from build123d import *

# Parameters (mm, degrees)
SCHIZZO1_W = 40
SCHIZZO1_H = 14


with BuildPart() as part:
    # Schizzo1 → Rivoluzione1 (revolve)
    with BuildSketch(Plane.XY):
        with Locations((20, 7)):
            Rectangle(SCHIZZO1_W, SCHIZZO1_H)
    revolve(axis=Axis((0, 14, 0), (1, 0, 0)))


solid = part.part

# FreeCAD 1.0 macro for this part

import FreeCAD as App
import Part
import Sketcher
from FreeCAD import Vector


def add_polygon(sketch, points):
    """Adds a closed chain of lines whose ends are joined by coincident constraints."""
    first, n = sketch.GeometryCount, len(points)
    for a, b in zip(points, points[1:] + points[:1]):
        sketch.addGeometry(Part.LineSegment(App.Vector(*a, 0), App.Vector(*b, 0)), False)
    for i in range(n):
        sketch.addConstraint(Sketcher.Constraint("Coincident", first + i, 2, first + (i + 1) % n, 1))

doc = App.newDocument("Part")
body = doc.addObject("PartDesign::Body", "Body")

sketch1 = body.newObject("Sketcher::SketchObject", "Sketch")
sketch1.AttachmentSupport = (doc.getObject("XY_Plane"), [""])
sketch1.MapMode = "FlatFace"
add_polygon(sketch1, [(0, 14), (0, 0), (40, 0), (40, 14)])
sketch1.addGeometry(Part.LineSegment(Vector(0, 14, 0), Vector(40, 14, 0)), True)
sketch1.addConstraint([
    Sketcher.Constraint("Vertical", 0),
    Sketcher.Constraint("Horizontal", 1),
    Sketcher.Constraint("Vertical", 2),
    Sketcher.Constraint("Horizontal", 3),
    Sketcher.Constraint("Horizontal", 4),
    Sketcher.Constraint("Coincident", 0, 2, -1, 1),
    Sketcher.Constraint("Coincident", 4, 1, 3, 2),
    Sketcher.Constraint("Vertical", 1, 2, 4, 2),
    Sketcher.Constraint("DistanceX", 1, 1, 1, 2, 40.0),
    Sketcher.Constraint("DistanceY", 0, 2, 0, 1, 14.0),
])
revolution = body.newObject("PartDesign::Revolution", "Revolution")
revolution.Profile = sketch1
revolution.ReferenceAxis = (sketch1, ["Axis0"])
revolution.Angle = 360

doc.recompute()
